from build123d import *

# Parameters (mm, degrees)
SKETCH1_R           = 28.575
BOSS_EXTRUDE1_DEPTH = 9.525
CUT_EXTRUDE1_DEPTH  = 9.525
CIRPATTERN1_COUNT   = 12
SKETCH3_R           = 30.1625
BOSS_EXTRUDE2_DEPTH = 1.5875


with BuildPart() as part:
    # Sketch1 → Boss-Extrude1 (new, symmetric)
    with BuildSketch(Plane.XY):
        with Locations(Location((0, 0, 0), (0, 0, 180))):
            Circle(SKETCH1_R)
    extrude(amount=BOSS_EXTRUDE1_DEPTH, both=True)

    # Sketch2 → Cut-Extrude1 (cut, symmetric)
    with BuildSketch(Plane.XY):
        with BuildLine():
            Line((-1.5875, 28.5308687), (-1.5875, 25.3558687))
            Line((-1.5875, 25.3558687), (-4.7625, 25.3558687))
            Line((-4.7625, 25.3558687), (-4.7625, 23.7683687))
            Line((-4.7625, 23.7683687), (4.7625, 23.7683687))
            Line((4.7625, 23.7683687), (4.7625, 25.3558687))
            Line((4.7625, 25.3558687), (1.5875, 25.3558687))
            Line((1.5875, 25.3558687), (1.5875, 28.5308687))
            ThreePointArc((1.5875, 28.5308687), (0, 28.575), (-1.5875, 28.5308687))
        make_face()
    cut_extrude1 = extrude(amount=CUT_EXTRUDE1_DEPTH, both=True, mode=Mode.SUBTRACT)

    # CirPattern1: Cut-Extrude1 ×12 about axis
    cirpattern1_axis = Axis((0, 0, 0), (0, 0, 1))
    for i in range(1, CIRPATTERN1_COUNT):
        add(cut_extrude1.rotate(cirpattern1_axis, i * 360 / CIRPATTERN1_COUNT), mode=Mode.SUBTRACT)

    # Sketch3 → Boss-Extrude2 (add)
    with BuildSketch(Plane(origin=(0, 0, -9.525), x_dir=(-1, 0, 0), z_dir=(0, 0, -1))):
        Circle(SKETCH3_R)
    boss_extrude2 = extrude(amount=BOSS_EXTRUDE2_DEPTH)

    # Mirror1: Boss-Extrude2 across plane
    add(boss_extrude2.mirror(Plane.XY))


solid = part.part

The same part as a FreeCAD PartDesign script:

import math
import FreeCAD as App
import Part
import Sketcher
Q = App.Units.Quantity

doc = App.newDocument("Part")
body = doc.addObject("PartDesign::Body", "Body")

sketch1 = doc.addObject("Sketcher::SketchObject", "Sketch")
body.addObject(sketch1)
sketch1.AttachmentSupport = (doc.XY_Plane, [""])
sketch1.MapMode = "FlatFace"
sketch1.addGeometry(Part.Circle(App.Vector(0, 0, 0), App.Vector(0, 0, 1), 28.575), False)
sketch1.addConstraint([
    Sketcher.Constraint("Coincident", 0, 3, -1, 1),
    Sketcher.Constraint("Diameter", 0, Q("2.25 in")),
])
pad1 = doc.addObject("PartDesign::Pad", "Pad")
body.addObject(pad1)
pad1.Profile = sketch1
pad1.Length = Q("0.75 in")
pad1.Midplane = True

sketch2 = doc.addObject("Sketcher::SketchObject", "Sketch001")
body.addObject(sketch2)
sketch2.AttachmentSupport = (doc.XY_Plane, [""])
sketch2.MapMode = "FlatFace"
sketch2.addGeometry([
    Part.LineSegment(App.Vector(-1.5875, 28.530869, 0), App.Vector(-1.5875, 25.355869, 0)),
    Part.LineSegment(App.Vector(-1.5875, 25.355869, 0), App.Vector(-4.7625, 25.355869, 0)),
    Part.LineSegment(App.Vector(-4.7625, 25.355869, 0), App.Vector(-4.7625, 23.768369, 0)),
    Part.LineSegment(App.Vector(-4.7625, 23.768369, 0), App.Vector(4.7625, 23.768369, 0)),
    Part.LineSegment(App.Vector(4.7625, 23.768369, 0), App.Vector(4.7625, 25.355869, 0)),
    Part.LineSegment(App.Vector(4.7625, 25.355869, 0), App.Vector(1.5875, 25.355869, 0)),
    Part.LineSegment(App.Vector(1.5875, 25.355869, 0), App.Vector(1.5875, 28.530869, 0)),
    Part.ArcOfCircle(Part.Circle(App.Vector(0, 0, 0), App.Vector(0, 0, 1), 28.575), math.radians(86.815261), math.radians(93.184739)),
], False)
sketch2.addConstraint([
    Sketcher.Constraint("Coincident", 0, 2, 1, 1),
    Sketcher.Constraint("Coincident", 1, 2, 2, 1),
    Sketcher.Constraint("Coincident", 2, 2, 3, 1),
    Sketcher.Constraint("Coincident", 3, 2, 4, 1),
    Sketcher.Constraint("Coincident", 4, 2, 5, 1),
    Sketcher.Constraint("Coincident", 5, 2, 6, 1),
    Sketcher.Constraint("Coincident", 6, 2, 7, 1),
    Sketcher.Constraint("Coincident", 7, 2, 0, 1),
    Sketcher.Constraint("Vertical", 0),
    Sketcher.Constraint("Horizontal", 1),
    Sketcher.Constraint("Vertical", 2),
    Sketcher.Constraint("Horizontal", 3),
    Sketcher.Constraint("Vertical", 4),
    Sketcher.Constraint("Horizontal", 5),
    Sketcher.Constraint("Vertical", 6),
    Sketcher.Constraint("Coincident", 7, 3, -1, 1),
    Sketcher.Constraint("Symmetric", 1, 2, 4, 2, -2),
    Sketcher.Constraint("Horizontal", 6, 2, 7, 2),
    Sketcher.Constraint("Equal", 5, 0),
    Sketcher.Constraint("Radius", 7, Q("1.125 in")),
    Sketcher.Constraint("DistanceX", 1, 2, 1, 1, Q("0.125 in")),
    Sketcher.Constraint("DistanceX", 3, 1, 3, 2, Q("0.375 in")),
    Sketcher.Constraint("DistanceY", 2, 2, 2, 1, Q("0.0625 in")),
])
pocket1 = doc.addObject("PartDesign::Pocket", "Pocket")
body.addObject(pocket1)
pocket1.Profile = sketch2
pocket1.Length = Q("0.75 in")
pocket1.Midplane = True
doc.recompute()

polarpattern = doc.addObject("PartDesign::PolarPattern", "PolarPattern")
body.addObject(polarpattern)
polarpattern.Originals = [pocket1]
polarpattern.Axis = (doc.Z_Axis, [""])
polarpattern.Angle = 360
polarpattern.Occurrences = 12
body.Tip = polarpattern

sketch3 = doc.addObject("Sketcher::SketchObject", "Sketch002")
body.addObject(sketch3)
sketch3.AttachmentSupport = (doc.XY_Plane, [""])
sketch3.MapMode = "FlatFace"
sketch3.AttachmentOffset = App.Placement(App.Vector(0, 0, -0.375 * 25.4), App.Rotation())
sketch3.addGeometry(Part.Circle(App.Vector(0, 0, 0), App.Vector(0, 0, 1), 30.1625), False)
sketch3.addConstraint([
    Sketcher.Constraint("Coincident", 0, 3, -1, 1),
    Sketcher.Constraint("Diameter", 0, Q("2.375 in")),
])
pad2 = doc.addObject("PartDesign::Pad", "Pad001")
body.addObject(pad2)
pad2.Profile = sketch3
pad2.Length = Q("0.0625 in")
pad2.Reversed = True
doc.recompute()

mirrored = doc.addObject("PartDesign::Mirrored", "Mirrored")
body.addObject(mirrored)
mirrored.Originals = [pad2]
mirrored.MirrorPlane = (doc.XY_Plane, [""])
body.Tip = mirrored

doc.recompute()
